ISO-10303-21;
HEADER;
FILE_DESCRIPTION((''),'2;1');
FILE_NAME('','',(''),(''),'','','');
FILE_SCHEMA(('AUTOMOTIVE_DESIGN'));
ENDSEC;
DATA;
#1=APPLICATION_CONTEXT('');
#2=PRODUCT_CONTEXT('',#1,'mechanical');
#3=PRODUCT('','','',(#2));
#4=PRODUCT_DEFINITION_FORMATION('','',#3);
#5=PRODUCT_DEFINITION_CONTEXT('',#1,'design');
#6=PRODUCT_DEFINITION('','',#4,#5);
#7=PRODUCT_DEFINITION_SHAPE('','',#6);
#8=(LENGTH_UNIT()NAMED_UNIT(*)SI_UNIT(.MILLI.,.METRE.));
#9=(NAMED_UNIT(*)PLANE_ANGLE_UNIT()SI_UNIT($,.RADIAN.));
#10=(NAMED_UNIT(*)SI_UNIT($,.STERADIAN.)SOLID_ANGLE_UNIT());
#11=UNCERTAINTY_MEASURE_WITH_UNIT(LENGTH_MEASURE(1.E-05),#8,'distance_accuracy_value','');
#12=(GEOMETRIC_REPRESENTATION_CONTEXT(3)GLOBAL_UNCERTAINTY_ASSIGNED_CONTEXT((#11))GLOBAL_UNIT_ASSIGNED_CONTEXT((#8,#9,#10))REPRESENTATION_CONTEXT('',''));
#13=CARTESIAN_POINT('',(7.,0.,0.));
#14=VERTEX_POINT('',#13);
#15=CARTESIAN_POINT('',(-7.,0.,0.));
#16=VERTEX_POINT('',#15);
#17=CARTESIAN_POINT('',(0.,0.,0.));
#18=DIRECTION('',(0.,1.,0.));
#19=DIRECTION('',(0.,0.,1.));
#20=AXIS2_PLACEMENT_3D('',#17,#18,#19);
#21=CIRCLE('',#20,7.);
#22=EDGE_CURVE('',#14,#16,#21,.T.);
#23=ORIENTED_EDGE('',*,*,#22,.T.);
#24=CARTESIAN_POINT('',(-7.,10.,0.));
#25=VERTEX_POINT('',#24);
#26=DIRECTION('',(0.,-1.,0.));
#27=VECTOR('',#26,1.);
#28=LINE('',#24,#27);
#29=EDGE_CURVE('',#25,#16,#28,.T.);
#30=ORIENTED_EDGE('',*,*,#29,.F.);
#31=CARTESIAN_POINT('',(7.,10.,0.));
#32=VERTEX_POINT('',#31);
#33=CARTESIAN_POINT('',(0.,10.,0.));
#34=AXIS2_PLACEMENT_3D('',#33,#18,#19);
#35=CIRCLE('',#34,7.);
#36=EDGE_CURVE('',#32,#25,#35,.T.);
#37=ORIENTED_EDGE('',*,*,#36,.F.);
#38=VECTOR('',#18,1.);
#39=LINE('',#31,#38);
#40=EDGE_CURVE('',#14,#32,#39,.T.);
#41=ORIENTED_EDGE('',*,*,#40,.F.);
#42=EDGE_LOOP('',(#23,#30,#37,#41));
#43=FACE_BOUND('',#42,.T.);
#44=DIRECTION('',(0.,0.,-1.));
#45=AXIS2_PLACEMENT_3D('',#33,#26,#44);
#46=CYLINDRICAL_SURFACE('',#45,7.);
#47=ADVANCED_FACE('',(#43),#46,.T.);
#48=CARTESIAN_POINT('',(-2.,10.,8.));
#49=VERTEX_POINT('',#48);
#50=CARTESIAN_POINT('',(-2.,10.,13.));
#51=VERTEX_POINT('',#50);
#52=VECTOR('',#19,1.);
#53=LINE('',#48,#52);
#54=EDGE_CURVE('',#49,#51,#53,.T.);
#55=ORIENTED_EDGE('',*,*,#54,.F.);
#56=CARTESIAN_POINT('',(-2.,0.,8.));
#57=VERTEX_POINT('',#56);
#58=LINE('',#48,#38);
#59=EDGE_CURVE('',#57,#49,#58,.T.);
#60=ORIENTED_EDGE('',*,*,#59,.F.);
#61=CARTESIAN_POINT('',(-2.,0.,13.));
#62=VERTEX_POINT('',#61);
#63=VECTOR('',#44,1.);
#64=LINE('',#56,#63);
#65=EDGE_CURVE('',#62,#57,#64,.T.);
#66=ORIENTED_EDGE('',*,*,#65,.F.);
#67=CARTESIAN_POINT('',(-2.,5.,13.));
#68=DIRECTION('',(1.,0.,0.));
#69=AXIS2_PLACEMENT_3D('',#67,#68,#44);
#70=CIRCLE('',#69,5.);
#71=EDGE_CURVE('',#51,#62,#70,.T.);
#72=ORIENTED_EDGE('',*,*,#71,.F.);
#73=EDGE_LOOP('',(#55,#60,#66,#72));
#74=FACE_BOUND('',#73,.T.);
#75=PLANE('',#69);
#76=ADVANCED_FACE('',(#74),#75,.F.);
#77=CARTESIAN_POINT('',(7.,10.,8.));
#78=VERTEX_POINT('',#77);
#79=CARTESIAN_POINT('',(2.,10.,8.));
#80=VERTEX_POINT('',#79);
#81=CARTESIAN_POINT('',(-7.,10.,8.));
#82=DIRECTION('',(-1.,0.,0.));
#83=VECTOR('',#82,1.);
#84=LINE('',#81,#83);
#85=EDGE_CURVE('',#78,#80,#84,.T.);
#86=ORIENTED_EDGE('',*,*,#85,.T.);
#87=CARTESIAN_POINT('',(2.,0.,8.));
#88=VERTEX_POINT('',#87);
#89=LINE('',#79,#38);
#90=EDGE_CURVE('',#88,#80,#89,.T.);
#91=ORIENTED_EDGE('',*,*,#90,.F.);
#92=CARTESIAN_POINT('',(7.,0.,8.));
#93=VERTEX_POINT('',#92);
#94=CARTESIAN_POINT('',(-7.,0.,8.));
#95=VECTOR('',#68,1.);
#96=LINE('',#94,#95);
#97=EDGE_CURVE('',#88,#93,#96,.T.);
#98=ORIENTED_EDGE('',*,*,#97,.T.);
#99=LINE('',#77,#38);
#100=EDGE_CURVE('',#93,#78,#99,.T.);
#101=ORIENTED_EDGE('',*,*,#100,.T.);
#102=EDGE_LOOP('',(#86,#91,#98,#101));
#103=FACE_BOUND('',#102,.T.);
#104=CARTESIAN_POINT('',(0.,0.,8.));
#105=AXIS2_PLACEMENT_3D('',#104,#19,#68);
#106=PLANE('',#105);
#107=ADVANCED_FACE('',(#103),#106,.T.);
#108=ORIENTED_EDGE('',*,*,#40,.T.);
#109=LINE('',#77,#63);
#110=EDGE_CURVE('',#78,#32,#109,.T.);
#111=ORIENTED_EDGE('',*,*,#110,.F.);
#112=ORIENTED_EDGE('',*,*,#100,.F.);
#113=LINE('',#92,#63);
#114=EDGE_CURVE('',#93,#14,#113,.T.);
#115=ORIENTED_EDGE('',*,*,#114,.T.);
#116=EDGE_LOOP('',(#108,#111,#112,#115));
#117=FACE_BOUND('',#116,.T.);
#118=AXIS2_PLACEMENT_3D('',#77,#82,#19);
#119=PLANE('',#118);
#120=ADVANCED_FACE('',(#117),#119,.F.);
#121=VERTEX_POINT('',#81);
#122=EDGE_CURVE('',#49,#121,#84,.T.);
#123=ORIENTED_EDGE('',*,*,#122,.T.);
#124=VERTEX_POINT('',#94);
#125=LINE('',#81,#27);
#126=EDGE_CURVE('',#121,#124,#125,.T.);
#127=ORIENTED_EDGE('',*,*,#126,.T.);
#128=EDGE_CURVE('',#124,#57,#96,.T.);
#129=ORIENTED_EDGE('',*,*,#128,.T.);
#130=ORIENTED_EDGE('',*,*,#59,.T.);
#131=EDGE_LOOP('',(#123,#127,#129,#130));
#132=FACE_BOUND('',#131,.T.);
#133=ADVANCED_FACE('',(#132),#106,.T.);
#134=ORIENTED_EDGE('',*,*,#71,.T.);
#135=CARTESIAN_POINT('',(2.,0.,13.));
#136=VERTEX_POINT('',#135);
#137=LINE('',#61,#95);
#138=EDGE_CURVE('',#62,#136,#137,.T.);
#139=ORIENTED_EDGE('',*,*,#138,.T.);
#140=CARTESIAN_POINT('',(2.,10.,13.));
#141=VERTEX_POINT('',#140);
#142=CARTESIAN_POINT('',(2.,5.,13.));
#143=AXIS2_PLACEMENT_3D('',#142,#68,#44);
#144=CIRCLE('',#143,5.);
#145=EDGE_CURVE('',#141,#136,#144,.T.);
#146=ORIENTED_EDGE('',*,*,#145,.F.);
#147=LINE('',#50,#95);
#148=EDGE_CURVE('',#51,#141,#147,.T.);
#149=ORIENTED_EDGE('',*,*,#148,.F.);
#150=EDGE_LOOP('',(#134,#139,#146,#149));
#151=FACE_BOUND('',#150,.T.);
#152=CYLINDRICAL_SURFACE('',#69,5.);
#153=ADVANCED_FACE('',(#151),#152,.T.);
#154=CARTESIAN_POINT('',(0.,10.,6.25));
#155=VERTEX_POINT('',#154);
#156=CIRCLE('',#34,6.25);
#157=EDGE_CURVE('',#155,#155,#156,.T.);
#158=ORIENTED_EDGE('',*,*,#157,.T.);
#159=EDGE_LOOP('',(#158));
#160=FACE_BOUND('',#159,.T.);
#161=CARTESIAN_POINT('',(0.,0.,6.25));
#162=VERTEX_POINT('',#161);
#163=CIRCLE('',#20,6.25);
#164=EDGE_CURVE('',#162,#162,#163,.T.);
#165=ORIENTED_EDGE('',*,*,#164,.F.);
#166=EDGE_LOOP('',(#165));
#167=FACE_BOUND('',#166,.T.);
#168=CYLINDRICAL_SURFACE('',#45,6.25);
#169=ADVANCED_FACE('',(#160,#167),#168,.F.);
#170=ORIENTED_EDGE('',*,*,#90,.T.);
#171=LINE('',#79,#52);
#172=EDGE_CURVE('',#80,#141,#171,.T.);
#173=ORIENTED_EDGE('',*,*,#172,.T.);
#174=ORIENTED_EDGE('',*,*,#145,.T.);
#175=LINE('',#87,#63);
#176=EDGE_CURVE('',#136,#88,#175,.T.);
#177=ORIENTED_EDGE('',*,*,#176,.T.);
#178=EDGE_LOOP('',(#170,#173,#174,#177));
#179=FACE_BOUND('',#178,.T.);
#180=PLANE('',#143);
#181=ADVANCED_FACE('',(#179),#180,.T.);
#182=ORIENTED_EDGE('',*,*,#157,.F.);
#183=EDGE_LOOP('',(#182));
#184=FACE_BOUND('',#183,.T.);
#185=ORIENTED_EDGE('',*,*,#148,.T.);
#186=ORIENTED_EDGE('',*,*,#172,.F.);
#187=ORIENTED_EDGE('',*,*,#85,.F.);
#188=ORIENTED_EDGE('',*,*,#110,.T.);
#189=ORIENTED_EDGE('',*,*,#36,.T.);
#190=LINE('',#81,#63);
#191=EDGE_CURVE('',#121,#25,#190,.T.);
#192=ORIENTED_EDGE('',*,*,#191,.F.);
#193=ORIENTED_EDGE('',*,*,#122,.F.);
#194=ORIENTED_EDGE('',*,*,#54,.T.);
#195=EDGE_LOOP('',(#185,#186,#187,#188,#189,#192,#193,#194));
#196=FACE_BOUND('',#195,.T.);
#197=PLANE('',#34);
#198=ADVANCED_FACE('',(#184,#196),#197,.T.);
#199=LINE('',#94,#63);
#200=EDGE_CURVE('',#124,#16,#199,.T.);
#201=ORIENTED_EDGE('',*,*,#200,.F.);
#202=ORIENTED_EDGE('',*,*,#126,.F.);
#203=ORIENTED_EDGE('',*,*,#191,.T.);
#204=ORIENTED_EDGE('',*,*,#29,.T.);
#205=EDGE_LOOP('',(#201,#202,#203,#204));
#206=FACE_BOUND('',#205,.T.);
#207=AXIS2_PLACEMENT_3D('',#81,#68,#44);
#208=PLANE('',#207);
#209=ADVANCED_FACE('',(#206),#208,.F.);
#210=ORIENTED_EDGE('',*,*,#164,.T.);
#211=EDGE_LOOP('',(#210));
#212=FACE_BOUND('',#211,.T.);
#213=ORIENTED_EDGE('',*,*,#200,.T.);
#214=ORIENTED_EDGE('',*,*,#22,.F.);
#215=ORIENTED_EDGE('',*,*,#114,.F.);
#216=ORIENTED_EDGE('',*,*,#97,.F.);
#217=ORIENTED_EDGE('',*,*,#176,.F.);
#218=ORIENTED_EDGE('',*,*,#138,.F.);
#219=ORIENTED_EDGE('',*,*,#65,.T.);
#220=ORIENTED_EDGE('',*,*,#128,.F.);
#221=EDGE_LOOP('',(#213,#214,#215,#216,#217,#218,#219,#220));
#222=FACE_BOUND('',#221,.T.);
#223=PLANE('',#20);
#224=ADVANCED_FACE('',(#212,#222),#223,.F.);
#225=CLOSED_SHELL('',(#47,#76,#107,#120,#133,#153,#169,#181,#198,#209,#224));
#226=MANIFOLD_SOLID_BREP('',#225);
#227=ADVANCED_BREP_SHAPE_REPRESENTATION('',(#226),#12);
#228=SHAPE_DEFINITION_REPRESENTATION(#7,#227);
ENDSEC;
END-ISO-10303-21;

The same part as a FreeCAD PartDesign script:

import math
import FreeCAD as App
import Part
import Sketcher


def add_polygon(sketch, points):
    """Adds a closed chain of lines whose ends are joined by coincident constraints."""
    first, n = sketch.GeometryCount, len(points)
    for a, b in zip(points, points[1:] + points[:1]):
        sketch.addGeometry(Part.LineSegment(App.Vector(*a, 0), App.Vector(*b, 0)), False)
    for i in range(n):
        sketch.addConstraint(Sketcher.Constraint("Coincident", first + i, 2, first + (i + 1) % n, 1))

doc = App.newDocument("Part")
body = doc.addObject("PartDesign::Body", "Body")

# Sketch on XZ plane
sketch1 = body.newObject("Sketcher::SketchObject", "Sketch")
sketch1.AttachmentSupport = (doc.getObject("XZ_Plane"), [""])
sketch1.MapMode = "FlatFace"
sketch1.addGeometry(Part.Circle(App.Vector(0, 0, 0), App.Vector(0, 0, 1), 7), False)
sketch1.addGeometry(Part.Circle(App.Vector(0, 0, 0), App.Vector(0, 0, 1), 6.25), False)
sketch1.addConstraint(Sketcher.Constraint("Coincident", 0, 3, -1, 1))
sketch1.addConstraint(Sketcher.Constraint("Coincident", 1, 3, -1, 1))
sketch1.addConstraint(Sketcher.Constraint("Diameter", 0, 14.0))
sketch1.addConstraint(Sketcher.Constraint("Diameter", 1, 12.5))
pad1 = body.newObject("PartDesign::Pad", "Pad")
pad1.Profile = sketch1
pad1.Length = 10
pad1.Reversed = True

# Sketch on XY plane
sketch2 = body.newObject("Sketcher::SketchObject", "Sketch001")
sketch2.AttachmentSupport = (doc.getObject("XY_Plane"), [""])
sketch2.MapMode = "FlatFace"
add_polygon(sketch2, [(-7, 10), (-7, 0), (7, 0), (7, 10)])  # lines 0-3
sketch2.addConstraint(Sketcher.Constraint("Vertical", 0))
sketch2.addConstraint(Sketcher.Constraint("Horizontal", 1))
sketch2.addConstraint(Sketcher.Constraint("Vertical", 2))
sketch2.addConstraint(Sketcher.Constraint("Horizontal", 3))
sketch2.addConstraint(Sketcher.Constraint("Symmetric", 0, 2, 1, 2, -1, 1))
sketch2.addConstraint(Sketcher.Constraint("DistanceX", 1, 1, 1, 2, 14.0))
sketch2.addConstraint(Sketcher.Constraint("DistanceY", 0, 2, 0, 1, 10.0))
pad2 = body.newObject("PartDesign::Pad", "Pad001")
pad2.Profile = sketch2
pad2.Length = 8

# Sketch on XZ plane
sketch3 = body.newObject("Sketcher::SketchObject", "Sketch002")
sketch3.AttachmentSupport = (doc.getObject("XZ_Plane"), [""])
sketch3.MapMode = "FlatFace"
sketch3.AttachmentOffset = App.Placement(App.Vector(0, 0, -10), App.Rotation())
sketch3.addGeometry(Part.Circle(App.Vector(0, 0, 0), App.Vector(0, 0, 1), 6.25), False)
sketch3.addConstraint(Sketcher.Constraint("Coincident", 0, 3, -1, 1))
sketch3.addConstraint(Sketcher.Constraint("Diameter", 0, 12.5))
pocket1 = body.newObject("PartDesign::Pocket", "Pocket")
pocket1.Profile = sketch3
pocket1.Length = 20
pocket1.Reversed = True

# Sketch on YZ plane
sketch4 = body.newObject("Sketcher::SketchObject", "Sketch003")
sketch4.AttachmentSupport = (doc.getObject("YZ_Plane"), [""])
sketch4.MapMode = "FlatFace"
sketch4.addGeometry(Part.LineSegment(App.Vector(10, 8, 0), App.Vector(10, 13, 0)), False)
sketch4.addGeometry(Part.ArcOfCircle(Part.Circle(App.Vector(5, 13, 0), App.Vector(0, 0, 1), 5), math.radians(0), math.radians(180)), False)
sketch4.addGeometry(Part.LineSegment(App.Vector(0, 13, 0), App.Vector(0, 8, 0)), False)
sketch4.addGeometry(Part.LineSegment(App.Vector(0, 8, 0), App.Vector(10, 8, 0)), False)
sketch4.addConstraint(Sketcher.Constraint("Tangent", 0, 2, 1, 1))
sketch4.addConstraint(Sketcher.Constraint("Tangent", 1, 2, 2, 1))
sketch4.addConstraint(Sketcher.Constraint("Coincident", 2, 2, 3, 1))
sketch4.addConstraint(Sketcher.Constraint("Coincident", 3, 2, 0, 1))
sketch4.addConstraint(Sketcher.Constraint("Vertical", 0))
sketch4.addConstraint(Sketcher.Constraint("Vertical", 2))
sketch4.addConstraint(Sketcher.Constraint("Horizontal", 3))
sketch4.addConstraint(Sketcher.Constraint("PointOnObject", 1, 2, -2))
sketch4.addConstraint(Sketcher.Constraint("Radius", 1, 5.0))
sketch4.addConstraint(Sketcher.Constraint("DistanceY", 0, 1, 0, 2, 5.0))
sketch4.addConstraint(Sketcher.Constraint("DistanceY", -1, 1, 1, 3, 13.0))
pad3 = body.newObject("PartDesign::Pad", "Pad002")
pad3.Profile = sketch4
pad3.Type = "TwoLengths"
pad3.Length = 2
pad3.Length2 = 2

doc.recompute()
